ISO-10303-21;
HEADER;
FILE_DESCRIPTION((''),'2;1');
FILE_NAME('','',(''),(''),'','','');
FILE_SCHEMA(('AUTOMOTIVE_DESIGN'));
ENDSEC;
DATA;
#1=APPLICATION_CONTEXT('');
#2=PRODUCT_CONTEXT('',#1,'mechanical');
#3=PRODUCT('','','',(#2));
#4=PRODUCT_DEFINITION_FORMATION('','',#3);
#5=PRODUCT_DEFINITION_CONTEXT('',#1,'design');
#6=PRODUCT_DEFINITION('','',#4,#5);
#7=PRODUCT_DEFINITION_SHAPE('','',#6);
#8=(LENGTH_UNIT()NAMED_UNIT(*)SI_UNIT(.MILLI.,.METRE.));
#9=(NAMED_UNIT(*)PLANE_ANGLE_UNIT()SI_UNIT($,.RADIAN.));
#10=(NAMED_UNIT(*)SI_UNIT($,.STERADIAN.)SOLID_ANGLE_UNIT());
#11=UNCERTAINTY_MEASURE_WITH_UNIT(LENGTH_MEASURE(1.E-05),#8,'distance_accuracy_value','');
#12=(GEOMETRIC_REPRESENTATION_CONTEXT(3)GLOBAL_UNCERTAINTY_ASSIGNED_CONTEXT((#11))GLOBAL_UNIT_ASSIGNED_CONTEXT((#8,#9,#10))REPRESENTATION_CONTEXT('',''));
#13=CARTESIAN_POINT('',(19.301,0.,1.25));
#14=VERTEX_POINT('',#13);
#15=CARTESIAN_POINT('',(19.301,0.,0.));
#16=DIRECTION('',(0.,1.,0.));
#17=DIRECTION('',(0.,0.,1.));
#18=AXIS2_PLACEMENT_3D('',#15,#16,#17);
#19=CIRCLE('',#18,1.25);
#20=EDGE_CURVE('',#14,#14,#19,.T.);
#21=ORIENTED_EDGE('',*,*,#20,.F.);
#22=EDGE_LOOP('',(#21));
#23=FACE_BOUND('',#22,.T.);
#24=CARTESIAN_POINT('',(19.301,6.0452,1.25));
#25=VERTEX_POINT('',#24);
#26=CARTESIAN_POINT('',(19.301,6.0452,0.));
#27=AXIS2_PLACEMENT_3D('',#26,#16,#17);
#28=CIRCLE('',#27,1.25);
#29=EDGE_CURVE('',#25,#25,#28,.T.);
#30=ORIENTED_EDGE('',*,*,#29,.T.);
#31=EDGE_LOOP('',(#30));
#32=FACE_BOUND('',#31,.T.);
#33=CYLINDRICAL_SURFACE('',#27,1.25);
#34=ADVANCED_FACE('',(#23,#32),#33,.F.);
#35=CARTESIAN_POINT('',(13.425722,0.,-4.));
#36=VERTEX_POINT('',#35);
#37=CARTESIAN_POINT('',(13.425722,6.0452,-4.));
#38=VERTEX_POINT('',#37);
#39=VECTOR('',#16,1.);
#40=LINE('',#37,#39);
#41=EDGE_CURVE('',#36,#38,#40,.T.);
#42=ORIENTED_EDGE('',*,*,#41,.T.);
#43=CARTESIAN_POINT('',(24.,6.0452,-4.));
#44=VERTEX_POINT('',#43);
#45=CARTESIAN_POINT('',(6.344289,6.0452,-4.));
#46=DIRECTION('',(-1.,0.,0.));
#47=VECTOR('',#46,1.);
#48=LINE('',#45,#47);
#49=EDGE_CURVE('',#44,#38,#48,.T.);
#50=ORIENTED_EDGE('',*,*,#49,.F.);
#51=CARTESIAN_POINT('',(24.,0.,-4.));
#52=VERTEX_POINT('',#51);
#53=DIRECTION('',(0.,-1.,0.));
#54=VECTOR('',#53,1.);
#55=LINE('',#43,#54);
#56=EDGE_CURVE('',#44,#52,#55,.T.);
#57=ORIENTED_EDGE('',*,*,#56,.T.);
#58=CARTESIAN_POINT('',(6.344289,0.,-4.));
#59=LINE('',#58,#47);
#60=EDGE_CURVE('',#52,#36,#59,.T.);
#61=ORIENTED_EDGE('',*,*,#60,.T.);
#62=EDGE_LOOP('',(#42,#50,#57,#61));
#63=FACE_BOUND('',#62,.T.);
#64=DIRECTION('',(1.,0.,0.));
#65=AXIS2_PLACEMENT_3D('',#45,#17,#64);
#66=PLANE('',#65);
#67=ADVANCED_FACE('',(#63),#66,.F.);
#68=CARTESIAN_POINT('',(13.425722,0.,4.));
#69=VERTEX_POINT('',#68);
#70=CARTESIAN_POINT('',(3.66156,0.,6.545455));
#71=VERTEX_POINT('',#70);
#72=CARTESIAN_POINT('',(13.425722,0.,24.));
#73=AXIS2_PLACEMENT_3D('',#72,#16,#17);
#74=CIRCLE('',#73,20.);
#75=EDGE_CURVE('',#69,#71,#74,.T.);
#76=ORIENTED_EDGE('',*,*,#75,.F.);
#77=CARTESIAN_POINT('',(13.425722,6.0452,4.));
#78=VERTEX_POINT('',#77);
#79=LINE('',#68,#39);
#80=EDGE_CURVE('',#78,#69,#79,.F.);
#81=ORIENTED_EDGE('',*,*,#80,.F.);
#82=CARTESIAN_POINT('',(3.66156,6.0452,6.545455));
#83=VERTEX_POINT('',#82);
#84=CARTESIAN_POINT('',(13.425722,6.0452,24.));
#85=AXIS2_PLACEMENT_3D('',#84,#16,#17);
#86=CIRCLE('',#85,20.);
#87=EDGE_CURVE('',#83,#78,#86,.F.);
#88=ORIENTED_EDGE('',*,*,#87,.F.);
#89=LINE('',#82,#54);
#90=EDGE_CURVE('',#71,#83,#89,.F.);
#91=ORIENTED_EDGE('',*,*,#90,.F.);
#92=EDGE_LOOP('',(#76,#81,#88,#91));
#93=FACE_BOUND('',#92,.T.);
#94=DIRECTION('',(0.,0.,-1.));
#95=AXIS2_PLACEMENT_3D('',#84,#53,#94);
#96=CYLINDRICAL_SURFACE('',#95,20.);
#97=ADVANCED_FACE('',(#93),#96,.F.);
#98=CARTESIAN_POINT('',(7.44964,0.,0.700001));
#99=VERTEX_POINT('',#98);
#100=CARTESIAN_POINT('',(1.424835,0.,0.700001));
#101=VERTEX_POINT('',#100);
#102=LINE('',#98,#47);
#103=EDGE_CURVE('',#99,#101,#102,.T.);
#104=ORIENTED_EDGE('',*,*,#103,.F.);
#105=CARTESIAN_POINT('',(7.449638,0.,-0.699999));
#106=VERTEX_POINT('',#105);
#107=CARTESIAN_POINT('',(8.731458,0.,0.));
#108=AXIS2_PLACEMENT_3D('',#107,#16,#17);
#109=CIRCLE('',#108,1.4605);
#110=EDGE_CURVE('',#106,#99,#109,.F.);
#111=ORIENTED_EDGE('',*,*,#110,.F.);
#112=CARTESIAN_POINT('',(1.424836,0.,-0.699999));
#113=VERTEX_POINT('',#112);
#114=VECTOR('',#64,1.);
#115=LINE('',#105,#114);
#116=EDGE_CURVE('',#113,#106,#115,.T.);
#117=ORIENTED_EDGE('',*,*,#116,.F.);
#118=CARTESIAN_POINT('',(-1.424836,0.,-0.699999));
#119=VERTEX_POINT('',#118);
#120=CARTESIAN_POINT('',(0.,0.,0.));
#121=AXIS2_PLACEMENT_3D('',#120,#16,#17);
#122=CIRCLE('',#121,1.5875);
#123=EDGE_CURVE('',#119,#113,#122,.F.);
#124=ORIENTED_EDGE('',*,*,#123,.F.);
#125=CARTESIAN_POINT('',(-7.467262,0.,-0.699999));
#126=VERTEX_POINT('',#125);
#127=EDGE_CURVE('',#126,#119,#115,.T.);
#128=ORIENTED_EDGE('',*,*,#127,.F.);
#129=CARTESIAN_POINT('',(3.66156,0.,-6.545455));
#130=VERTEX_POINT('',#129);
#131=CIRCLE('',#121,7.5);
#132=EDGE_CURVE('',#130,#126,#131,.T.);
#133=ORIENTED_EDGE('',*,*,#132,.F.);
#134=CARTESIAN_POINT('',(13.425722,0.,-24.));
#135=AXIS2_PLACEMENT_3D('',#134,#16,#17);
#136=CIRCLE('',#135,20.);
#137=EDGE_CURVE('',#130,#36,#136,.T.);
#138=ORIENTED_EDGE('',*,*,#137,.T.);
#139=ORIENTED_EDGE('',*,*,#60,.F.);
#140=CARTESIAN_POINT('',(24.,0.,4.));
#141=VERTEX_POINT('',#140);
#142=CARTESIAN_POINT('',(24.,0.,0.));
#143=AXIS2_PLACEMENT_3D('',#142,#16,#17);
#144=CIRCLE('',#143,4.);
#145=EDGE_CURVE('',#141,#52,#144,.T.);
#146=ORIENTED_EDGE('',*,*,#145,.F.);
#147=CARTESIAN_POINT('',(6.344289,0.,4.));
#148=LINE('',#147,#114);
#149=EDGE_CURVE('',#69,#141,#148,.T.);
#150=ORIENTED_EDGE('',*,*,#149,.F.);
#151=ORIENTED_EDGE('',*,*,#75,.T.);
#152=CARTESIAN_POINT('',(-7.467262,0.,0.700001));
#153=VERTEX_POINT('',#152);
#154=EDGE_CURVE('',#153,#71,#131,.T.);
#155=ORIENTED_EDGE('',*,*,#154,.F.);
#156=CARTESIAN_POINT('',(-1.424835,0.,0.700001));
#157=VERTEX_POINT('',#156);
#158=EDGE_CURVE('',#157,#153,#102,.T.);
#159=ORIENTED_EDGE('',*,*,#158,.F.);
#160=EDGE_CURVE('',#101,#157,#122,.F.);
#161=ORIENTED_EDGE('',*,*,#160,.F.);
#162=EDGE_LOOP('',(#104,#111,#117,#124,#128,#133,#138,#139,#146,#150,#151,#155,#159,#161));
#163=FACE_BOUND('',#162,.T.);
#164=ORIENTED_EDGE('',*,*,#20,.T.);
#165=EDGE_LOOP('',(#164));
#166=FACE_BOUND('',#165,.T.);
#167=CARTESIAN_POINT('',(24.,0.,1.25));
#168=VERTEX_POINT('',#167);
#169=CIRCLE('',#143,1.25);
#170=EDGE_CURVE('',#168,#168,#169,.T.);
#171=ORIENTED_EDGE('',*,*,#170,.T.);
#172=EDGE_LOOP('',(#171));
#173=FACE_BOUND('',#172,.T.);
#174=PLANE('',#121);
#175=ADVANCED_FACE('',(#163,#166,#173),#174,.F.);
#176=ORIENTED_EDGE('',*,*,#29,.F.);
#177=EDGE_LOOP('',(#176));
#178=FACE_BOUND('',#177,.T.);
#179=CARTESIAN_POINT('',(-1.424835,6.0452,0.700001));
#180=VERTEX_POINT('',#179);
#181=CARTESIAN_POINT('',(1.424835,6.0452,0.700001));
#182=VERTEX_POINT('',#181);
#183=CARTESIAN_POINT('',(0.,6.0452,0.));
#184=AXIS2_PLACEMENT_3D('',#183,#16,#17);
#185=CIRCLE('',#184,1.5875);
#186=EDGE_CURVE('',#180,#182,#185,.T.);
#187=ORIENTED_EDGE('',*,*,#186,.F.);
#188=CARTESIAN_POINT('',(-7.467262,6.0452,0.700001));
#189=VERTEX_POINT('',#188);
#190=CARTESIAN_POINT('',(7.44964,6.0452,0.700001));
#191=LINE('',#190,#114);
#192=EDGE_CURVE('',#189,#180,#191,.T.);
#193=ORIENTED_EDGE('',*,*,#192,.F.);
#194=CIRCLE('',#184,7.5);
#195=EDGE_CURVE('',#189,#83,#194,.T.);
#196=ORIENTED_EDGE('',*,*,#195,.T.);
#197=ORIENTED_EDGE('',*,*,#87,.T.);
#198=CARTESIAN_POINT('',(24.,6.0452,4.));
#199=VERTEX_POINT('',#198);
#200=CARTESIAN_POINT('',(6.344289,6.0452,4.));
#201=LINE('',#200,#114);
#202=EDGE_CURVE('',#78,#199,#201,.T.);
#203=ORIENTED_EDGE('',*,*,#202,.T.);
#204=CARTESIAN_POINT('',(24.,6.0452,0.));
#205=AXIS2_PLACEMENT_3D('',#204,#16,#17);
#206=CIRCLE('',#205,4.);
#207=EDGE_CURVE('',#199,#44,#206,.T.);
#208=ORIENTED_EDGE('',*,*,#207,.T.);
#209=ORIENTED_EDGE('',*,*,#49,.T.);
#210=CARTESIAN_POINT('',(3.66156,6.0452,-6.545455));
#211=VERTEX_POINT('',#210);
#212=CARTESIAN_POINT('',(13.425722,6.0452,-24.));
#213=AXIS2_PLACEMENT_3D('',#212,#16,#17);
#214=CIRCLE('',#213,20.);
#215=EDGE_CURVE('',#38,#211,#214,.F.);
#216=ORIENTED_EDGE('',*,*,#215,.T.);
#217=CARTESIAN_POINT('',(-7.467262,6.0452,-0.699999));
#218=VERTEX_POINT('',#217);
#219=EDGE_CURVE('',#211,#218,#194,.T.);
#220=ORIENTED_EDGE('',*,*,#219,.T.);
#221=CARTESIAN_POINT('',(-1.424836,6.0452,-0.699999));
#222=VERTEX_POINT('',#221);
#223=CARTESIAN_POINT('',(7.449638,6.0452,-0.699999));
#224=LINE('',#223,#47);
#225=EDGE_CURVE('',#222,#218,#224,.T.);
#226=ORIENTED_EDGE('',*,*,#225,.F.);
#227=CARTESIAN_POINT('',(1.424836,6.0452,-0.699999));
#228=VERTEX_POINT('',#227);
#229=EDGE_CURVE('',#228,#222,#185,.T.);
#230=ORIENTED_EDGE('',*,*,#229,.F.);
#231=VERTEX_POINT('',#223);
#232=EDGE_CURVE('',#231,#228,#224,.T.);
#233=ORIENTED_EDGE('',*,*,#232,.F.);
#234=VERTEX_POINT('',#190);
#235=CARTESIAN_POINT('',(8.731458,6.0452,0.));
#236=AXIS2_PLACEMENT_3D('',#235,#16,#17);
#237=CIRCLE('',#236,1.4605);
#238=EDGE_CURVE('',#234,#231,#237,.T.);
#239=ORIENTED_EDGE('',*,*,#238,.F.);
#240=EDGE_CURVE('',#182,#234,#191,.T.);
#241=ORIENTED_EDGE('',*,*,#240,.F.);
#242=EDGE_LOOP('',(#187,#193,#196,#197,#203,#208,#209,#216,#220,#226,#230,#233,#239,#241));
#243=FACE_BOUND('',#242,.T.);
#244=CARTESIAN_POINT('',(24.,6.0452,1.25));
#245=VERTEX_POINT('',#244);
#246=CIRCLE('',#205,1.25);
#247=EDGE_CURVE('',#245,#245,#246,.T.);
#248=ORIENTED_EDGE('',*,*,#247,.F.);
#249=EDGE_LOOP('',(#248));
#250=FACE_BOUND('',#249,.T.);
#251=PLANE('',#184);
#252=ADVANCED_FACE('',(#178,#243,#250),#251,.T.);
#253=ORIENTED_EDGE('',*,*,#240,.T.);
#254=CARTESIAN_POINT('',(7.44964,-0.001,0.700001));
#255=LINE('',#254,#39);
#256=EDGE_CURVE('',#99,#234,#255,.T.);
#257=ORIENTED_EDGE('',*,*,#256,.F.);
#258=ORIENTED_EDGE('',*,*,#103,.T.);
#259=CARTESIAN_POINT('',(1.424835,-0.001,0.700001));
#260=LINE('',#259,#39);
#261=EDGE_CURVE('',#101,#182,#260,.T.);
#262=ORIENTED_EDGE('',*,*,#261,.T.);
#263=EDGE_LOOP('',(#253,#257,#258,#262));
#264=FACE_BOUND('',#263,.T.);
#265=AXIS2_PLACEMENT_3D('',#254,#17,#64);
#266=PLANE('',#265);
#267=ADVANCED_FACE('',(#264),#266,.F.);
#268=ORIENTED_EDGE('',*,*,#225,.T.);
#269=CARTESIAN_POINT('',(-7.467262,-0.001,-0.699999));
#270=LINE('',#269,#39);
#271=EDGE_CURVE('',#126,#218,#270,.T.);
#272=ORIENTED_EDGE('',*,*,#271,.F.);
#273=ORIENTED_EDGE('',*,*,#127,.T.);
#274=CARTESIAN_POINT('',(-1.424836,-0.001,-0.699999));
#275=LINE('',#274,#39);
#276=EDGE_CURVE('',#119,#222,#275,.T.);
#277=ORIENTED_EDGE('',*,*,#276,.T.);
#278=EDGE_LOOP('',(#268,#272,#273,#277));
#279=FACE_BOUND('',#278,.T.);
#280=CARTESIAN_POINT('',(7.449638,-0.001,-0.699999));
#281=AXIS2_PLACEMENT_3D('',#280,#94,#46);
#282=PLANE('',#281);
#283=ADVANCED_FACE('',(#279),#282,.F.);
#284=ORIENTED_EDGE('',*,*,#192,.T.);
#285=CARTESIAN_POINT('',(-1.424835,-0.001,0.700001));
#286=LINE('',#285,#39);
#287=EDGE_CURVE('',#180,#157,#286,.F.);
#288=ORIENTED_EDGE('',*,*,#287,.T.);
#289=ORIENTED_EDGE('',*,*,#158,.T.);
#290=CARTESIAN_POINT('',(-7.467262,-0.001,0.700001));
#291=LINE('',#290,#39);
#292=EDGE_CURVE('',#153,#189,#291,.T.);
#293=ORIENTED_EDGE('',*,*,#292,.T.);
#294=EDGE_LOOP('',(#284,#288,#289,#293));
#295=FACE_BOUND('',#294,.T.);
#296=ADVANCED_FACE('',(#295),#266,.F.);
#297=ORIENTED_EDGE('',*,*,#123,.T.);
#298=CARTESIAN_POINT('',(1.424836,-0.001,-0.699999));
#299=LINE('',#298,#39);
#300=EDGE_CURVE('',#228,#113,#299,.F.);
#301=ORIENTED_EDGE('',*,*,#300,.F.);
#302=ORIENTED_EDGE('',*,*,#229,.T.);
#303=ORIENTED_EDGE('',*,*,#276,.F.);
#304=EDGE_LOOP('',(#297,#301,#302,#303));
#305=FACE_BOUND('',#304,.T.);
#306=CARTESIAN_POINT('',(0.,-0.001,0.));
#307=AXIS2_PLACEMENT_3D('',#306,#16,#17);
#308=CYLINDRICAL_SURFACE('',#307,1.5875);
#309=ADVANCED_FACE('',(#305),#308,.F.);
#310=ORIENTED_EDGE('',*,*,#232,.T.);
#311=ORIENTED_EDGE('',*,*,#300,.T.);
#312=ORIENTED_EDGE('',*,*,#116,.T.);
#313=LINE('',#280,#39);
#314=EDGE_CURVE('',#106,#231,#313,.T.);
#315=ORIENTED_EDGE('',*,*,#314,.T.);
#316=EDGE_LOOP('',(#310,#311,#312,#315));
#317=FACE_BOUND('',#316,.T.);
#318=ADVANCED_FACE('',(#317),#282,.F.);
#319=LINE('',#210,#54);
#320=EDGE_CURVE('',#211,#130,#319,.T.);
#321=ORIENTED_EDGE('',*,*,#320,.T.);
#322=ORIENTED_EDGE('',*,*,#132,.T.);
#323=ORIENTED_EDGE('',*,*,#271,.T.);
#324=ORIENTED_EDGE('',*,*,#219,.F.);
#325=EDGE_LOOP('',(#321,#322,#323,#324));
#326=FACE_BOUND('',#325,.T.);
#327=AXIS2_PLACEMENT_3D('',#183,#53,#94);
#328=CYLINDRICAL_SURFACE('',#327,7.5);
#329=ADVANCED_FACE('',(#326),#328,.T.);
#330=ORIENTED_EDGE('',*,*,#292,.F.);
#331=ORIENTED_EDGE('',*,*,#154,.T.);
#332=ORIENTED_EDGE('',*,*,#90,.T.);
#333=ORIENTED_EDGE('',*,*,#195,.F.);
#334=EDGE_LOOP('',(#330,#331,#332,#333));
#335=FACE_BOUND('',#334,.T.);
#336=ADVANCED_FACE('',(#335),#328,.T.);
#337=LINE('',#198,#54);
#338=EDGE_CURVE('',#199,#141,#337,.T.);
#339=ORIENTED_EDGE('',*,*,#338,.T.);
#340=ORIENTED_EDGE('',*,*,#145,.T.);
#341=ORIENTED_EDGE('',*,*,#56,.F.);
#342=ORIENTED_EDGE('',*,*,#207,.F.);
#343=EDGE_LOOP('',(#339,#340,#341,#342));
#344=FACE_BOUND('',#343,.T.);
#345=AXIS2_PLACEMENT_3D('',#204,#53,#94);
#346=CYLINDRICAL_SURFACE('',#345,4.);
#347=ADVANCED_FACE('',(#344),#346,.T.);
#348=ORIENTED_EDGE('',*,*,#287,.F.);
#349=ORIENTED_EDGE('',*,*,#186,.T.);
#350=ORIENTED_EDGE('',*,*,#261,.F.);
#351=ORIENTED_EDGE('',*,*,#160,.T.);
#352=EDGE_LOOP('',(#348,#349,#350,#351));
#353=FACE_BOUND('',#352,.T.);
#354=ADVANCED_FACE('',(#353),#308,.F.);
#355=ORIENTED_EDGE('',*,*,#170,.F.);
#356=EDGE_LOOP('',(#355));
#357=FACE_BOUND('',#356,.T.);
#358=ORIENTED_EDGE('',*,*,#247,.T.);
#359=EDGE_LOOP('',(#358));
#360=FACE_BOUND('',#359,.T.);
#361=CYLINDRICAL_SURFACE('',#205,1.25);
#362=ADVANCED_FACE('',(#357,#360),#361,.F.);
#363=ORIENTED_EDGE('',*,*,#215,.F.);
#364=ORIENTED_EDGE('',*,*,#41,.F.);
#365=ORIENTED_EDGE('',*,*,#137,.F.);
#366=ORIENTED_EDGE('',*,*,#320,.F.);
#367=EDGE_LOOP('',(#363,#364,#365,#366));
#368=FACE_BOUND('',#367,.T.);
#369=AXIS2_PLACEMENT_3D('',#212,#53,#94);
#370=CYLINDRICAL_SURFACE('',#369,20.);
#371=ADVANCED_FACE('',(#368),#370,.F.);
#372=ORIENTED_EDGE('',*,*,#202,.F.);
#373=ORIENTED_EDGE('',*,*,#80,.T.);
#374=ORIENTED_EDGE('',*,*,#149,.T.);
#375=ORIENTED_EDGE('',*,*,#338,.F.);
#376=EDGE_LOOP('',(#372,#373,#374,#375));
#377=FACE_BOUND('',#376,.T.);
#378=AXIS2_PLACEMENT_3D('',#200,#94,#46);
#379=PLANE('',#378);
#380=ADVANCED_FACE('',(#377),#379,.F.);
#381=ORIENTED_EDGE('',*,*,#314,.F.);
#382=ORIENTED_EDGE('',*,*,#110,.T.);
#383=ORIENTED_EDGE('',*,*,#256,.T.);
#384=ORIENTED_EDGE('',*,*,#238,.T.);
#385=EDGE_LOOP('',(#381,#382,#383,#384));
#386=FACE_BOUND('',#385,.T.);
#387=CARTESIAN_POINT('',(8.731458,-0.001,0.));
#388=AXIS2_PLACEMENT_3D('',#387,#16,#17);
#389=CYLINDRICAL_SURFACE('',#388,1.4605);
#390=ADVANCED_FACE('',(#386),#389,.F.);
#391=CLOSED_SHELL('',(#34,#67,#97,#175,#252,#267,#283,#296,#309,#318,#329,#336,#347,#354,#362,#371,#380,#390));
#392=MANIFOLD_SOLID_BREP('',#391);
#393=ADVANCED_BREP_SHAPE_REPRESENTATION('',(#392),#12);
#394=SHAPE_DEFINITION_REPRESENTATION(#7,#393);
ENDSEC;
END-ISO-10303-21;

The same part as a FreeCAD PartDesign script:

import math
import FreeCAD as App
import Part
import Sketcher
Q = App.Units.Quantity


def edges_at(feature, points):
    """Names of the edges that pass closest to the given points."""
    edges = feature.Shape.Edges
    near = lambda p: min(range(len(edges)), key=lambda i: edges[i].distToShape(Part.Vertex(*p))[0])
    return sorted({f"Edge{near(p) + 1}" for p in points})

doc = App.newDocument("Part")
body = doc.addObject("PartDesign::Body", "Body")

# Sketch on XZ plane
sketch1 = body.newObject("Sketcher::SketchObject", "Sketch")
sketch1.AttachmentSupport = (doc.getObject("XZ_Plane"), [""])
sketch1.MapMode = "FlatFace"
sketch1.addGeometry([
    Part.LineSegment(App.Vector(6.344289, 4, 0), App.Vector(24, 4, 0)),
    Part.ArcOfCircle(Part.Circle(App.Vector(24, 0, 0), App.Vector(0, 0, 1), 4), math.radians(-90), math.radians(90)),
    Part.LineSegment(App.Vector(24, -4, 0), App.Vector(6.344289, -4, 0)),
    Part.ArcOfCircle(Part.Circle(App.Vector(0, 0, 0), App.Vector(0, 0, 1), 7.5), math.radians(32.230953), math.radians(327.769047)),
], False)
sketch1.addConstraint([
    Sketcher.Constraint("Tangent", 0, 2, 1, 2),
    Sketcher.Constraint("Tangent", 1, 1, 2, 1),
    Sketcher.Constraint("Coincident", 2, 2, 3, 2),
    Sketcher.Constraint("Coincident", 3, 1, 0, 1),
    Sketcher.Constraint("Horizontal", 0),
    Sketcher.Constraint("Horizontal", 2),
    Sketcher.Constraint("Coincident", 3, 3, -1, 1),
    Sketcher.Constraint("PointOnObject", 1, 3, -1),
    Sketcher.Constraint("Radius", 1, Q("4 mm")),
    Sketcher.Constraint("Radius", 3, Q("7.5 mm")),
    Sketcher.Constraint("DistanceX", -1, 1, 1, 3, Q("24 mm")),
])
pad1 = body.newObject("PartDesign::Pad", "Pad")
pad1.Profile = sketch1
pad1.Length = 6.0452
pad1.Reversed = True
doc.recompute()

fillet = body.newObject("PartDesign::Fillet", "Fillet")
fillet.Base = (pad1, edges_at(pad1, [(6.344, 3.023, -4), (6.344, 3.023, 4)]))
fillet.Radius = 20

# Sketch on XZ plane
sketch2 = body.newObject("Sketcher::SketchObject", "Sketch001")
sketch2.AttachmentSupport = (doc.getObject("XZ_Plane"), [""])
sketch2.MapMode = "FlatFace"
sketch2.AttachmentOffset = App.Placement(App.Vector(0, 0, -6.0452), App.Rotation())
sketch2.addGeometry([
    Part.Circle(App.Vector(19.301, 0, 0), App.Vector(0, 0, 1), 1.25),
    Part.Circle(App.Vector(24, 0, 0), App.Vector(0, 0, 1), 1.25),
], False)
sketch2.addConstraint([
    Sketcher.Constraint("Equal", 0, 1),
    Sketcher.Constraint("PointOnObject", 0, 3, -1),
    Sketcher.Constraint("PointOnObject", 1, 3, -1),
    Sketcher.Constraint("Diameter", 0, Q("2.5 mm")),
    Sketcher.Constraint("DistanceX", -1, 1, 1, 3, Q("24 mm")),
    Sketcher.Constraint("DistanceX", -1, 1, 0, 3, Q("19.301 mm")),
])
doc.recompute()
hole = body.newObject("PartDesign::Hole", "Hole")
hole.Profile = sketch2
hole.ThreadType = "None"
hole.Diameter = 2.5
hole.DepthType = "ThroughAll"
hole.Reversed = True

# Sketch on XZ plane
sketch3 = body.newObject("Sketcher::SketchObject", "Sketch002")
sketch3.AttachmentSupport = (doc.getObject("XZ_Plane"), [""])
sketch3.MapMode = "FlatFace"
sketch3.AttachmentOffset = App.Placement(App.Vector(0, 0, -6.0452), App.Rotation())
sketch3.addGeometry(Part.Circle(App.Vector(0, 0, 0), App.Vector(0, 0, 1), 1.5875), False)
sketch3.addConstraint([
    Sketcher.Constraint("Coincident", 0, 3, -1, 1),
    Sketcher.Constraint("Diameter", 0, Q("3.175 mm")),
])
pocket1 = body.newObject("PartDesign::Pocket", "Pocket")
pocket1.Profile = sketch3
pocket1.Type = "UpToFirst"
pocket1.Reversed = True

# Sketch on XZ plane
sketch4 = body.newObject("Sketcher::SketchObject", "Sketch003")
sketch4.AttachmentSupport = (doc.getObject("XZ_Plane"), [""])
sketch4.MapMode = "FlatFace"
sketch4.AttachmentOffset = App.Placement(App.Vector(0, 0, -6.0452), App.Rotation())
sketch4.addGeometry(Part.Circle(App.Vector(8.731458, 0, 0), App.Vector(0, 0, 1), 1.4605), False)
sketch4.addConstraint([
    Sketcher.Constraint("PointOnObject", 0, 3, -1),
    Sketcher.Constraint("Diameter", 0, Q("2.921 mm")),
    Sketcher.Constraint("DistanceX", -1, 1, 0, 3, Q("8.731458 mm")),
])
pocket2 = body.newObject("PartDesign::Pocket", "Pocket001")
pocket2.Profile = sketch4
pocket2.Type = "UpToFirst"
pocket2.Reversed = True

# Sketch on XZ plane
sketch5 = body.newObject("Sketcher::SketchObject", "Sketch004")
sketch5.AttachmentSupport = (doc.getObject("XZ_Plane"), [""])
sketch5.MapMode = "FlatFace"
sketch5.addGeometry([
    Part.LineSegment(App.Vector(7.449638, -0.699999, 0), App.Vector(-7.467262, -0.699999, 0)),
    Part.ArcOfCircle(Part.Circle(App.Vector(0, 0, 0), App.Vector(0, 0, 1), 7.5), math.radians(174.644589), math.radians(185.35539)),
    Part.LineSegment(App.Vector(-7.467262, 0.700001, 0), App.Vector(7.44964, 0.700001, 0)),
    Part.ArcOfCircle(Part.Circle(App.Vector(8.731458, 0, 0), App.Vector(0, 0, 1), 1.4605), math.radians(151.361032), math.radians(208.638842)),
], False)
sketch5.addConstraint([
    Sketcher.Constraint("Coincident", 0, 2, 1, 2),
    Sketcher.Constraint("Coincident", 1, 1, 2, 1),
    Sketcher.Constraint("Coincident", 2, 2, 3, 1),
    Sketcher.Constraint("Coincident", 3, 2, 0, 1),
    Sketcher.Constraint("Horizontal", 0),
    Sketcher.Constraint("Horizontal", 2),
    Sketcher.Constraint("Coincident", 1, 3, -1, 1),
    Sketcher.Constraint("Symmetric", 2, 2, 3, 2, -1),
    Sketcher.Constraint("Radius", 1, Q("7.5 mm")),
    Sketcher.Constraint("DistanceY", 0, 2, -1, 1, Q("0.699999 mm")),
    Sketcher.Constraint("Radius", 3, Q("1.4605 mm")),
    Sketcher.Constraint("DistanceX", 0, 2, 0, 1, Q("14.9169 mm")),
])
pocket3 = body.newObject("PartDesign::Pocket", "Pocket002")
pocket3.Profile = sketch5
pocket3.Length = 6.0452

doc.recompute()
